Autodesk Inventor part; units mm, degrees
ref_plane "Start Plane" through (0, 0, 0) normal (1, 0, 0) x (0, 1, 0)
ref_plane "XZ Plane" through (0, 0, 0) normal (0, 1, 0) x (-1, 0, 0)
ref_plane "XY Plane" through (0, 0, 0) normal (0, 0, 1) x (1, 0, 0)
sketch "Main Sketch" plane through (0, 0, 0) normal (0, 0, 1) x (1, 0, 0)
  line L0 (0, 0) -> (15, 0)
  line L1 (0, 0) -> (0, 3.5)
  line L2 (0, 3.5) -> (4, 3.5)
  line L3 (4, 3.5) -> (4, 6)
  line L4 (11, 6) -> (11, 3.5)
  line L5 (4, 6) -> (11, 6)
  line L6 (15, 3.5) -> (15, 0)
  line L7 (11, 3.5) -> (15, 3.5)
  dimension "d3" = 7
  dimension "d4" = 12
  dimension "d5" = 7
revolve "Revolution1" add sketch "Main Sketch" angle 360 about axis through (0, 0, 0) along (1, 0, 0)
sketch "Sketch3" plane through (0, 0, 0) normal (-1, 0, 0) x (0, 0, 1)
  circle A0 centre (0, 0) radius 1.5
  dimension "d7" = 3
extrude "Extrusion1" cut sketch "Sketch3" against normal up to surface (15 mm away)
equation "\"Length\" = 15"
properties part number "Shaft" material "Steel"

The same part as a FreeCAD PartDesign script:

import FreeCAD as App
import Part
import Sketcher

V = App.Vector

doc = App.newDocument("Part")
body = doc.addObject("PartDesign::Body", "Body")

# Sketch on XY plane
sketch1 = doc.addObject("Sketcher::SketchObject", "Sketch")
body.addObject(sketch1)
sketch1.AttachmentSupport = (doc.XY_Plane, [""])
sketch1.MapMode = "FlatFace"
sketch1.addGeometry([
    Part.LineSegment(V(0, 3.5, 0), V(0, 0, 0)),  # 0
    Part.LineSegment(V(0, 0, 0), V(15, 0, 0)),  # 1
    Part.LineSegment(V(15, 0, 0), V(15, 3.5, 0)),  # 2
    Part.LineSegment(V(15, 3.5, 0), V(11, 3.5, 0)),  # 3
    Part.LineSegment(V(11, 3.5, 0), V(11, 6, 0)),  # 4
    Part.LineSegment(V(11, 6, 0), V(4, 6, 0)),  # 5
    Part.LineSegment(V(4, 6, 0), V(4, 3.5, 0)),  # 6
    Part.LineSegment(V(4, 3.5, 0), V(0, 3.5, 0)),  # 7
], False)
sketch1.addConstraint([
    Sketcher.Constraint("Coincident", 0, 2, 1, 1),
    Sketcher.Constraint("Coincident", 1, 2, 2, 1),
    Sketcher.Constraint("Coincident", 2, 2, 3, 1),
    Sketcher.Constraint("Coincident", 3, 2, 4, 1),
    Sketcher.Constraint("Coincident", 4, 2, 5, 1),
    Sketcher.Constraint("Coincident", 5, 2, 6, 1),
    Sketcher.Constraint("Coincident", 6, 2, 7, 1),
    Sketcher.Constraint("Coincident", 7, 2, 0, 1),
    Sketcher.Constraint("Vertical", 0),
    Sketcher.Constraint("Horizontal", 1),
    Sketcher.Constraint("Vertical", 2),
    Sketcher.Constraint("Horizontal", 3),
    Sketcher.Constraint("Vertical", 4),
    Sketcher.Constraint("Horizontal", 5),
    Sketcher.Constraint("Vertical", 6),
    Sketcher.Constraint("Horizontal", 7),
    Sketcher.Constraint("Coincident", 0, 2, -1, 1),
    Sketcher.Constraint("Horizontal", 3, 2, 6, 2),
    Sketcher.Constraint("Equal", 3, 7),
    Sketcher.Constraint("DistanceX", 5, 2, 5, 1, 7.0),
    Sketcher.Constraint("DistanceX", 1, 1, 1, 2, 15.0),
    Sketcher.Constraint("DistanceY", 0, 2, 0, 1, 3.5),
    Sketcher.Constraint("DistanceY", 4, 1, 4, 2, 2.5),
])
revolution = doc.addObject("PartDesign::Revolution", "Revolution")
body.addObject(revolution)
revolution.Profile = sketch1
revolution.ReferenceAxis = (sketch1, ["H_Axis"])
revolution.Angle = 360

# Sketch on YZ plane
sketch2 = doc.addObject("Sketcher::SketchObject", "Sketch001")
body.addObject(sketch2)
sketch2.AttachmentSupport = (doc.YZ_Plane, [""])
sketch2.MapMode = "FlatFace"
sketch2.addGeometry(Part.Circle(V(0, 0, 0), V(0, 0, 1), 1.5), False)
sketch2.addConstraint([
    Sketcher.Constraint("Coincident", 0, 3, -1, 1),
    Sketcher.Constraint("Diameter", 0, 3.0),
])
pocket1 = doc.addObject("PartDesign::Pocket", "Pocket")
body.addObject(pocket1)
pocket1.Profile = sketch2
pocket1.Length = 15
pocket1.Reversed = True

doc.recompute()
